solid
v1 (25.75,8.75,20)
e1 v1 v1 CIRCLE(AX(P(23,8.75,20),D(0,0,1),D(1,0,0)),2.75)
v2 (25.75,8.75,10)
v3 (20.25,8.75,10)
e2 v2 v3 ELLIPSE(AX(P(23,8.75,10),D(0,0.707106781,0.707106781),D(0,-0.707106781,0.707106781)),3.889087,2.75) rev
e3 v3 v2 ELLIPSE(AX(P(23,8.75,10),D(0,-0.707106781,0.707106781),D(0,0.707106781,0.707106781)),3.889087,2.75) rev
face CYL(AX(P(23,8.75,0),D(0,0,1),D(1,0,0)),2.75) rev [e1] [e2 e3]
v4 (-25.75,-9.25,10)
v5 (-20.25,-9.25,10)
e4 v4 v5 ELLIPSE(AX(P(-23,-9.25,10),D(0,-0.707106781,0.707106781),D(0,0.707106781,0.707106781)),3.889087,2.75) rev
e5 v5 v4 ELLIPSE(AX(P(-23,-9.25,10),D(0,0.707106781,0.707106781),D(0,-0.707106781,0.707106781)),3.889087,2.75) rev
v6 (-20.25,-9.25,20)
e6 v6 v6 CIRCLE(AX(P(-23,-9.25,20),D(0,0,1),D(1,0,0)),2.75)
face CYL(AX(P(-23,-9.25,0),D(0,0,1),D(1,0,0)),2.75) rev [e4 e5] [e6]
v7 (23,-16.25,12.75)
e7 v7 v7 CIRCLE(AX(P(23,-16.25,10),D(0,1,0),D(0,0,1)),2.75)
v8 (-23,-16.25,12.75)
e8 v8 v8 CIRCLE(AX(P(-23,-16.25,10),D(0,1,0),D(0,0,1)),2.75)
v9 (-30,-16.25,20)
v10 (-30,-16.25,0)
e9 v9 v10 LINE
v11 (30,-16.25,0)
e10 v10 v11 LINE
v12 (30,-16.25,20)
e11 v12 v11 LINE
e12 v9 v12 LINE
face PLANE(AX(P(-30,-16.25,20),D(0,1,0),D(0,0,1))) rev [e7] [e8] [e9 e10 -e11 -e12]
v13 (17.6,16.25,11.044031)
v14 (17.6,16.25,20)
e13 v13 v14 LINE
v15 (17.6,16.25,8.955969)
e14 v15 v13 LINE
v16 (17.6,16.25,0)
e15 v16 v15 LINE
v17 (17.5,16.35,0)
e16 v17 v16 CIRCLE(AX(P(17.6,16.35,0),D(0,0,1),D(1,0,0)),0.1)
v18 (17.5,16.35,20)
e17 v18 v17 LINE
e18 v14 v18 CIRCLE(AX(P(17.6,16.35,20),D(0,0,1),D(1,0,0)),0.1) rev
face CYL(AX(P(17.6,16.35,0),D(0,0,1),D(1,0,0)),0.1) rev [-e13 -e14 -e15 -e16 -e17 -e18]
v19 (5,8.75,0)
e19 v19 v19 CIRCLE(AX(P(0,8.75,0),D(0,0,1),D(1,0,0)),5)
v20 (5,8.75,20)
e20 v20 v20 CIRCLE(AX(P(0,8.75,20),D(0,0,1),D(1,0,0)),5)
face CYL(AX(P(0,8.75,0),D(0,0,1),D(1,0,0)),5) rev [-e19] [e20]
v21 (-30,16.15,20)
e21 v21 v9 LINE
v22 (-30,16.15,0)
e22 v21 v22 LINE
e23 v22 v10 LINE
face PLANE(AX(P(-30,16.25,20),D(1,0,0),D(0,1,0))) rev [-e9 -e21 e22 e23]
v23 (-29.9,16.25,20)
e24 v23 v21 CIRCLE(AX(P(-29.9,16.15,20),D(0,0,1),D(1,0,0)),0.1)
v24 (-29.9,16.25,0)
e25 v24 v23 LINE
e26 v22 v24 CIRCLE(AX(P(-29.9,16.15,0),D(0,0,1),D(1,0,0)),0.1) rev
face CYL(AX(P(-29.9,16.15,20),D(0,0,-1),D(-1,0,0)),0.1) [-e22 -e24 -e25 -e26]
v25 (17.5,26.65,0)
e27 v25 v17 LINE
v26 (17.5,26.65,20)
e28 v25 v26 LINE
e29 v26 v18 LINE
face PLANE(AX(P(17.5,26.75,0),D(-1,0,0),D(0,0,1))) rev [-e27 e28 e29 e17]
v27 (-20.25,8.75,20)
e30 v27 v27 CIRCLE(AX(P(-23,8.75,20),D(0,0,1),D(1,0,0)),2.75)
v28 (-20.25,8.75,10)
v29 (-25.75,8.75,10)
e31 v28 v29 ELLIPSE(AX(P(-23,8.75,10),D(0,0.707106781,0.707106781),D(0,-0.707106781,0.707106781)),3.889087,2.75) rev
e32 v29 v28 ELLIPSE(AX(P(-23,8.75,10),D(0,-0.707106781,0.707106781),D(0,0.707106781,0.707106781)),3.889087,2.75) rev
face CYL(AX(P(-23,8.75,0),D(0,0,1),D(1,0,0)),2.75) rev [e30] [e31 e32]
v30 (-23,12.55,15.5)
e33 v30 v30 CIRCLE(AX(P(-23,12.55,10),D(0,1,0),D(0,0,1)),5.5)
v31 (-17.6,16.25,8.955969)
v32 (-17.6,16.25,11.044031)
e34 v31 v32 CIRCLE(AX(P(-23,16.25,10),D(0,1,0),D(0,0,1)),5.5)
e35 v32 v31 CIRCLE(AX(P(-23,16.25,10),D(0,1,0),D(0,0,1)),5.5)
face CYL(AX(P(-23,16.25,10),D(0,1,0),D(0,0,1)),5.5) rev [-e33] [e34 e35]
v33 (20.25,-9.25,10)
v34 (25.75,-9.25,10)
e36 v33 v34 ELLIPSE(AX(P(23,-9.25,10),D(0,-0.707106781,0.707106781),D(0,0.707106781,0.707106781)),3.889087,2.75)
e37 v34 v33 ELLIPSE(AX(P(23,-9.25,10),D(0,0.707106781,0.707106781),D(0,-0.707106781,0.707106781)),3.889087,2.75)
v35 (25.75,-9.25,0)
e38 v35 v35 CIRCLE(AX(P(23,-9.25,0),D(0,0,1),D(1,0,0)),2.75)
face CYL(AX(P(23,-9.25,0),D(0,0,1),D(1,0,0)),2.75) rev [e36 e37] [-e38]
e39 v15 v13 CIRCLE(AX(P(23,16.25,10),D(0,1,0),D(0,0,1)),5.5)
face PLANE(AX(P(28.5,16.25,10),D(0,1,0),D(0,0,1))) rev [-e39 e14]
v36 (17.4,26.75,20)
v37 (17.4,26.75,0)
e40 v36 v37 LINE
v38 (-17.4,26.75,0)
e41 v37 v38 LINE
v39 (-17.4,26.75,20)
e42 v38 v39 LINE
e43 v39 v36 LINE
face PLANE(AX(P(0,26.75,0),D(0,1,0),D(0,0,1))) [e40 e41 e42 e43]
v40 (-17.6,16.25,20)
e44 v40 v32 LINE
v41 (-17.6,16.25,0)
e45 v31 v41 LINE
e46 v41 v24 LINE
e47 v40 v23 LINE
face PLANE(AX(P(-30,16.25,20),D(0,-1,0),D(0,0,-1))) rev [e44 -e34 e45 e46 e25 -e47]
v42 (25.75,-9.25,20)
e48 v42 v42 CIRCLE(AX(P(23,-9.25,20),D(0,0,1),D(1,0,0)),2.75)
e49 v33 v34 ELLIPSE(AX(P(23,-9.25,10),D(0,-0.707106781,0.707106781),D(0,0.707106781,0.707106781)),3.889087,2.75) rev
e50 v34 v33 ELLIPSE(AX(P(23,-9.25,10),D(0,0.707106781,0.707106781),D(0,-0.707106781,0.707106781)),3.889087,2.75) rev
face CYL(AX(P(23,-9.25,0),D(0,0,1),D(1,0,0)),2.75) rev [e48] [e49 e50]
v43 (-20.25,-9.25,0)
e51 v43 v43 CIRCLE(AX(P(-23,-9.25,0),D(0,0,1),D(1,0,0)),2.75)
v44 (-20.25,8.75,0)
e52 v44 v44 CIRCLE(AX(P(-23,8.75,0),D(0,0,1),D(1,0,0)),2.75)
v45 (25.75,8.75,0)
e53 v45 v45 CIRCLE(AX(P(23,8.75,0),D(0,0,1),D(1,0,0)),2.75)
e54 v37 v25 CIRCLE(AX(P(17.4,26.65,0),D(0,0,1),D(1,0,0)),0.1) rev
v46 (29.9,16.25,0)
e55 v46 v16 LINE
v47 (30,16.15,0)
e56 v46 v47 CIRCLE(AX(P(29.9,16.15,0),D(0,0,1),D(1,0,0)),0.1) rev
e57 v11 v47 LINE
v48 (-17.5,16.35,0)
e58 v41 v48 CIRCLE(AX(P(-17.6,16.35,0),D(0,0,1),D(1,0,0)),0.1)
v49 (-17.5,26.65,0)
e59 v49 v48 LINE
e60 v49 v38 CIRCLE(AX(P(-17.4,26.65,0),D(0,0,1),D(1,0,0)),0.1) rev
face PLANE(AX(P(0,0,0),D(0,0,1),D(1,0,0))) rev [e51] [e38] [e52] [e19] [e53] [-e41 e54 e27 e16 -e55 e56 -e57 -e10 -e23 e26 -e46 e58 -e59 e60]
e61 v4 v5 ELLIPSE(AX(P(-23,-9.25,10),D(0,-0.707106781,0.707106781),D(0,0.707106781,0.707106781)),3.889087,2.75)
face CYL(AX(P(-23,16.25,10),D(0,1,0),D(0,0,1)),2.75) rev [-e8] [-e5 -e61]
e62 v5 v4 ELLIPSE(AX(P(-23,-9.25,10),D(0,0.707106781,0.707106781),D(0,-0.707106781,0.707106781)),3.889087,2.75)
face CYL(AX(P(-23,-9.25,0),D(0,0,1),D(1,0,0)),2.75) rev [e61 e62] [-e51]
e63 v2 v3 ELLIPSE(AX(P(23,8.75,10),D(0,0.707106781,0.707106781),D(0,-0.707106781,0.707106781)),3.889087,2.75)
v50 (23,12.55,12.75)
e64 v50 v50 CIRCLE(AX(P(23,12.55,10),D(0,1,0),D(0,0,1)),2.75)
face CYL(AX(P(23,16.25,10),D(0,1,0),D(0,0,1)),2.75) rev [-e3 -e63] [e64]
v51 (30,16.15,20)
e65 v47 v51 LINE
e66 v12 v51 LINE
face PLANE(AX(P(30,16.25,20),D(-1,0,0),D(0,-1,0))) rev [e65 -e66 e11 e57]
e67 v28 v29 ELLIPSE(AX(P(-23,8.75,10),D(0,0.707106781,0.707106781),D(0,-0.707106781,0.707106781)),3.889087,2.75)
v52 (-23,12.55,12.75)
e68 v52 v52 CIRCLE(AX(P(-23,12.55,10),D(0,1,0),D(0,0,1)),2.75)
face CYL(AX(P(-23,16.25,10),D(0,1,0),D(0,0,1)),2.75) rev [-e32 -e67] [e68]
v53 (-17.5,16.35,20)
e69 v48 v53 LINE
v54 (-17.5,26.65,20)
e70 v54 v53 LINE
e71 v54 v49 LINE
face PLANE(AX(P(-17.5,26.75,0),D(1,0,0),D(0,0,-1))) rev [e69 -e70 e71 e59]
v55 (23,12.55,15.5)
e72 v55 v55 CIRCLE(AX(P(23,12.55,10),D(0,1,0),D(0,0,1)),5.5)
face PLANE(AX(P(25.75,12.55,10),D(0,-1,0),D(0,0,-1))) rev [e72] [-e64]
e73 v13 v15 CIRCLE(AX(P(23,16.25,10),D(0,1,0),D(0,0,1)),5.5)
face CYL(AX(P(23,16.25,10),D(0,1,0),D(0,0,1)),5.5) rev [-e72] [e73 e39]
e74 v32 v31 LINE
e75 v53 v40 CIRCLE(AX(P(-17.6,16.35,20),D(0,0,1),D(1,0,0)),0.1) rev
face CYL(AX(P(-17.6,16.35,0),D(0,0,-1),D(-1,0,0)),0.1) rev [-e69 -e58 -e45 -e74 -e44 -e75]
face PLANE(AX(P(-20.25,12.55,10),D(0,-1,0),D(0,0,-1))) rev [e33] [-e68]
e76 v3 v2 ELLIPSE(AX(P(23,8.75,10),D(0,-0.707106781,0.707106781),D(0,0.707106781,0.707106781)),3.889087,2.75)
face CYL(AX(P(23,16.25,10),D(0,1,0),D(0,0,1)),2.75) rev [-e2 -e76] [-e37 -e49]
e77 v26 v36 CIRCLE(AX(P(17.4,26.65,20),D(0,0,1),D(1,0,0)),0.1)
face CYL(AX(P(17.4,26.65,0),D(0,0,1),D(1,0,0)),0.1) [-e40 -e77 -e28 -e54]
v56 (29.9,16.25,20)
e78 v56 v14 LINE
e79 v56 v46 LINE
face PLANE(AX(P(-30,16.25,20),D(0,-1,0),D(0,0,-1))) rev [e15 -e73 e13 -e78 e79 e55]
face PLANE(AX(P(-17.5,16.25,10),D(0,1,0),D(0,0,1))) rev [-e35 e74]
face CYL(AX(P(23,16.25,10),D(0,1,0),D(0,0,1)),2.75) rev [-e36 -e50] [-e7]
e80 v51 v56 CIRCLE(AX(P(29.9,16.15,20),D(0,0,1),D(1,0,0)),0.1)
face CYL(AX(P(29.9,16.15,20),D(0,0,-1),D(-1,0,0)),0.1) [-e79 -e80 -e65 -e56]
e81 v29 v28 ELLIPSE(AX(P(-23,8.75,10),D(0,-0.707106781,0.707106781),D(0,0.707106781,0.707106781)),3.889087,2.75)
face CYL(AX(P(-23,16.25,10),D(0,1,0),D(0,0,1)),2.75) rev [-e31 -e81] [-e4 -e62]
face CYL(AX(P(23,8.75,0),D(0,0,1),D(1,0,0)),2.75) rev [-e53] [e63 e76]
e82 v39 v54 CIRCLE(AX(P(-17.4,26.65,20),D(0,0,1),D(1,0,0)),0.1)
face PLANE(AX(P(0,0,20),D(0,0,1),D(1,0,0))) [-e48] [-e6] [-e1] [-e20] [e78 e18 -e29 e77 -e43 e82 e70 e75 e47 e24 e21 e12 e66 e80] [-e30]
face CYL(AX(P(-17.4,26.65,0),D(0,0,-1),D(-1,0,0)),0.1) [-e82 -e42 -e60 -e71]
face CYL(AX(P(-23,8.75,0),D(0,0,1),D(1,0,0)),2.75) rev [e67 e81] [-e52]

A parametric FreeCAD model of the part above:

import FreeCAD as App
import Part
import Sketcher
Q = App.Units.Quantity


def edges_at(feature, points):
    """Names of the edges that pass closest to the given points."""
    edges = feature.Shape.Edges
    near = lambda p: min(range(len(edges)), key=lambda i: edges[i].distToShape(Part.Vertex(*p))[0])
    return sorted({f"Edge{near(p) + 1}" for p in points})

doc = App.newDocument("Part")
body = doc.addObject("PartDesign::Body", "Body")

# Sketch on XY plane
sketch1 = doc.addObject("Sketcher::SketchObject", "Sketch")
body.addObject(sketch1)
sketch1.AttachmentSupport = (doc.XY_Plane, [""])
sketch1.MapMode = "FlatFace"
sketch1.addGeometry(Part.LineSegment(App.Vector(-30, 16.25, 0), App.Vector(-30, -16.25, 0)), False)
sketch1.addGeometry(Part.LineSegment(App.Vector(-30, -16.25, 0), App.Vector(30, -16.25, 0)), False)
sketch1.addGeometry(Part.LineSegment(App.Vector(30, -16.25, 0), App.Vector(30, 16.25, 0)), False)
sketch1.addGeometry(Part.LineSegment(App.Vector(30, 16.25, 0), App.Vector(-30, 16.25, 0)), False)
sketch1.addConstraint(Sketcher.Constraint("Coincident", 0, 2, 1, 1))
sketch1.addConstraint(Sketcher.Constraint("Coincident", 1, 2, 2, 1))
sketch1.addConstraint(Sketcher.Constraint("Coincident", 2, 2, 3, 1))
sketch1.addConstraint(Sketcher.Constraint("Coincident", 3, 2, 0, 1))
sketch1.addConstraint(Sketcher.Constraint("Vertical", 0))
sketch1.addConstraint(Sketcher.Constraint("Horizontal", 1))
sketch1.addConstraint(Sketcher.Constraint("Vertical", 2))
sketch1.addConstraint(Sketcher.Constraint("Horizontal", 3))
sketch1.addConstraint(Sketcher.Constraint("Symmetric", 0, 2, 2, 2, -1, 1))
sketch1.addConstraint(Sketcher.Constraint("DistanceX", 1, 1, 1, 2, Q("60 mm")))
sketch1.addConstraint(Sketcher.Constraint("DistanceY", 0, 2, 0, 1, Q("32.5 mm")))
pad1 = doc.addObject("PartDesign::Pad", "Pad")
body.addObject(pad1)
pad1.Profile = sketch1
pad1.Length = 20

# Sketch on XZ plane
sketch2 = doc.addObject("Sketcher::SketchObject", "Sketch001")
body.addObject(sketch2)
sketch2.AttachmentSupport = (doc.XZ_Plane, [""])
sketch2.MapMode = "FlatFace"
sketch2.AttachmentOffset = App.Placement(App.Vector(0, 0, -16.25), App.Rotation())
sketch2.addGeometry(Part.LineSegment(App.Vector(-17.5, 0, 0), App.Vector(-17.5, 20, 0)), False)
sketch2.addGeometry(Part.LineSegment(App.Vector(-17.5, 20, 0), App.Vector(17.5, 20, 0)), False)
sketch2.addGeometry(Part.LineSegment(App.Vector(17.5, 20, 0), App.Vector(17.5, 0, 0)), False)
sketch2.addGeometry(Part.LineSegment(App.Vector(17.5, 0, 0), App.Vector(-17.5, 0, 0)), False)
sketch2.addConstraint(Sketcher.Constraint("Coincident", 0, 2, 1, 1))
sketch2.addConstraint(Sketcher.Constraint("Coincident", 1, 2, 2, 1))
sketch2.addConstraint(Sketcher.Constraint("Coincident", 2, 2, 3, 1))
sketch2.addConstraint(Sketcher.Constraint("Coincident", 3, 2, 0, 1))
sketch2.addConstraint(Sketcher.Constraint("Vertical", 0))
sketch2.addConstraint(Sketcher.Constraint("Horizontal", 1))
sketch2.addConstraint(Sketcher.Constraint("Vertical", 2))
sketch2.addConstraint(Sketcher.Constraint("Horizontal", 3))
sketch2.addConstraint(Sketcher.Constraint("Symmetric", 2, 2, 3, 2, -1, 1))
sketch2.addConstraint(Sketcher.Constraint("DistanceX", 1, 1, 1, 2, Q("35 mm")))
sketch2.addConstraint(Sketcher.Constraint("DistanceY", 0, 1, 0, 2, Q("20 mm")))
pad2 = doc.addObject("PartDesign::Pad", "Pad001")
body.addObject(pad2)
pad2.Profile = sketch2
pad2.Length = 10.5
pad2.Reversed = True
doc.recompute()

fillet = doc.addObject("PartDesign::Fillet", "Fillet")
body.addObject(fillet)
fillet.Base = (pad2, edges_at(pad2, [
    (17.5, 16.25, 10),
    (-17.5, 16.25, 10),
    (17.5, 26.75, 10),
    (-17.5, 26.75, 10),
    (-30, 16.25, 10),
    (30, 16.25, 10),
]))
fillet.Radius = 0.1

# Sketch on XY plane
sketch3 = doc.addObject("Sketcher::SketchObject", "Sketch002")
body.addObject(sketch3)
sketch3.AttachmentSupport = (doc.XY_Plane, [""])
sketch3.MapMode = "FlatFace"
sketch3.AttachmentOffset = App.Placement(App.Vector(0, 0, 20), App.Rotation())
sketch3.addGeometry(Part.Circle(App.Vector(0, 8.75, 0), App.Vector(0, 0, 1), 5), False)
sketch3.addGeometry(Part.Circle(App.Vector(-23, 8.75, 0), App.Vector(0, 0, 1), 2.75), False)
sketch3.addGeometry(Part.Circle(App.Vector(-23, -9.25, 0), App.Vector(0, 0, 1), 2.75), False)
sketch3.addGeometry(Part.Circle(App.Vector(23, 8.75, 0), App.Vector(0, 0, 1), 2.75), False)
sketch3.addGeometry(Part.Circle(App.Vector(23, -9.25, 0), App.Vector(0, 0, 1), 2.75), False)
sketch3.addConstraint(Sketcher.Constraint("Equal", 1, 2))
sketch3.addConstraint(Sketcher.Constraint("Equal", 2, 3))
sketch3.addConstraint(Sketcher.Constraint("Equal", 3, 4))
sketch3.addConstraint(Sketcher.Constraint("Symmetric", 1, 3, 3, 3, -2))
sketch3.addConstraint(Sketcher.Constraint("Symmetric", 2, 3, 4, 3, -2))
sketch3.addConstraint(Sketcher.Constraint("PointOnObject", 0, 3, -2))
sketch3.addConstraint(Sketcher.Constraint("Horizontal", 0, 3, 1, 3))
sketch3.addConstraint(Sketcher.Constraint("Vertical", 1, 3, 2, 3))
sketch3.addConstraint(Sketcher.Constraint("Diameter", 0, Q("10 mm")))
sketch3.addConstraint(Sketcher.Constraint("Diameter", 1, Q("5.5 mm")))
sketch3.addConstraint(Sketcher.Constraint("DistanceX", 1, 3, -1, 1, Q("23 mm")))
sketch3.addConstraint(Sketcher.Constraint("DistanceY", 2, 3, 1, 3, Q("18 mm")))
sketch3.addConstraint(Sketcher.Constraint("DistanceY", -1, 1, 0, 3, Q("8.75 mm")))
pocket1 = doc.addObject("PartDesign::Pocket", "Pocket")
body.addObject(pocket1)
pocket1.Profile = sketch3
pocket1.Type = "ThroughAll"

# Sketch on YZ plane
sketch4 = doc.addObject("Sketcher::SketchObject", "Sketch003")
body.addObject(sketch4)
sketch4.AttachmentSupport = (doc.YZ_Plane, [""])
sketch4.MapMode = "FlatFace"
sketch4.AttachmentOffset = App.Placement(App.Vector(0, 0, 23), App.Rotation())
sketch4.addGeometry(Part.LineSegment(App.Vector(-25.402367, 10, 0), App.Vector(16.25, 10, 0)), False)
sketch4.addGeometry(Part.LineSegment(App.Vector(16.25, 10, 0), App.Vector(16.25, 15.5, 0)), False)
sketch4.addGeometry(Part.LineSegment(App.Vector(16.25, 15.5, 0), App.Vector(12.55, 15.5, 0)), False)
sketch4.addGeometry(Part.LineSegment(App.Vector(12.55, 15.5, 0), App.Vector(12.55, 12.75, 0)), False)
sketch4.addGeometry(Part.LineSegment(App.Vector(12.55, 12.75, 0), App.Vector(-23.75, 12.75, 0)), False)
sketch4.addGeometry(Part.LineSegment(App.Vector(-23.75, 12.75, 0), App.Vector(-25.402367, 10, 0)), False)
sketch4.addGeometry(Part.LineSegment(App.Vector(16.25, 10, 0), App.Vector(-25.402367, 10, 0)), True)  # axis
sketch4.addConstraint(Sketcher.Constraint("Coincident", 0, 2, 1, 1))
sketch4.addConstraint(Sketcher.Constraint("Coincident", 1, 2, 2, 1))
sketch4.addConstraint(Sketcher.Constraint("Coincident", 2, 2, 3, 1))
sketch4.addConstraint(Sketcher.Constraint("Coincident", 3, 2, 4, 1))
sketch4.addConstraint(Sketcher.Constraint("Coincident", 4, 2, 5, 1))
sketch4.addConstraint(Sketcher.Constraint("Coincident", 5, 2, 0, 1))
sketch4.addConstraint(Sketcher.Constraint("Horizontal", 0))
sketch4.addConstraint(Sketcher.Constraint("Vertical", 1))
sketch4.addConstraint(Sketcher.Constraint("Horizontal", 2))
sketch4.addConstraint(Sketcher.Constraint("Vertical", 3))
sketch4.addConstraint(Sketcher.Constraint("Horizontal", 4))
sketch4.addConstraint(Sketcher.Constraint("Horizontal", 6))
sketch4.addConstraint(Sketcher.Constraint("Coincident", 6, 1, 0, 2))
sketch4.addConstraint(Sketcher.Constraint("Equal", 0, 6))
sketch4.addConstraint(Sketcher.Constraint("Angle", 5, Q("-121 deg")))
sketch4.addConstraint(Sketcher.Constraint("DistanceX", 2, 2, 2, 1, Q("3.7 mm")))
sketch4.addConstraint(Sketcher.Constraint("DistanceX", 4, 2, 4, 1, Q("36.3 mm")))
sketch4.addConstraint(Sketcher.Constraint("DistanceY", 1, 1, 1, 2, Q("5.5 mm")))
sketch4.addConstraint(Sketcher.Constraint("DistanceY", -1, 1, 0, 2, Q("10 mm")))
sketch4.addConstraint(Sketcher.Constraint("DistanceY", 3, 2, 3, 1, Q("2.75 mm")))
sketch4.addConstraint(Sketcher.Constraint("DistanceX", -1, 1, 0, 2, Q("16.25 mm")))
groove = doc.addObject("PartDesign::Groove", "Groove")
body.addObject(groove)
groove.Profile = sketch4
groove.ReferenceAxis = (sketch4, ["Axis0"])
groove.Angle = 360
doc.recompute()

linearpattern = doc.addObject("PartDesign::LinearPattern", "LinearPattern")
body.addObject(linearpattern)
linearpattern.Originals = [groove]
linearpattern.Direction = (doc.X_Axis, [""])
linearpattern.Mode = "offset"
linearpattern.Offset = 46
linearpattern.Occurrences = 2
linearpattern.Reversed = True
body.Tip = linearpattern

doc.recompute()
